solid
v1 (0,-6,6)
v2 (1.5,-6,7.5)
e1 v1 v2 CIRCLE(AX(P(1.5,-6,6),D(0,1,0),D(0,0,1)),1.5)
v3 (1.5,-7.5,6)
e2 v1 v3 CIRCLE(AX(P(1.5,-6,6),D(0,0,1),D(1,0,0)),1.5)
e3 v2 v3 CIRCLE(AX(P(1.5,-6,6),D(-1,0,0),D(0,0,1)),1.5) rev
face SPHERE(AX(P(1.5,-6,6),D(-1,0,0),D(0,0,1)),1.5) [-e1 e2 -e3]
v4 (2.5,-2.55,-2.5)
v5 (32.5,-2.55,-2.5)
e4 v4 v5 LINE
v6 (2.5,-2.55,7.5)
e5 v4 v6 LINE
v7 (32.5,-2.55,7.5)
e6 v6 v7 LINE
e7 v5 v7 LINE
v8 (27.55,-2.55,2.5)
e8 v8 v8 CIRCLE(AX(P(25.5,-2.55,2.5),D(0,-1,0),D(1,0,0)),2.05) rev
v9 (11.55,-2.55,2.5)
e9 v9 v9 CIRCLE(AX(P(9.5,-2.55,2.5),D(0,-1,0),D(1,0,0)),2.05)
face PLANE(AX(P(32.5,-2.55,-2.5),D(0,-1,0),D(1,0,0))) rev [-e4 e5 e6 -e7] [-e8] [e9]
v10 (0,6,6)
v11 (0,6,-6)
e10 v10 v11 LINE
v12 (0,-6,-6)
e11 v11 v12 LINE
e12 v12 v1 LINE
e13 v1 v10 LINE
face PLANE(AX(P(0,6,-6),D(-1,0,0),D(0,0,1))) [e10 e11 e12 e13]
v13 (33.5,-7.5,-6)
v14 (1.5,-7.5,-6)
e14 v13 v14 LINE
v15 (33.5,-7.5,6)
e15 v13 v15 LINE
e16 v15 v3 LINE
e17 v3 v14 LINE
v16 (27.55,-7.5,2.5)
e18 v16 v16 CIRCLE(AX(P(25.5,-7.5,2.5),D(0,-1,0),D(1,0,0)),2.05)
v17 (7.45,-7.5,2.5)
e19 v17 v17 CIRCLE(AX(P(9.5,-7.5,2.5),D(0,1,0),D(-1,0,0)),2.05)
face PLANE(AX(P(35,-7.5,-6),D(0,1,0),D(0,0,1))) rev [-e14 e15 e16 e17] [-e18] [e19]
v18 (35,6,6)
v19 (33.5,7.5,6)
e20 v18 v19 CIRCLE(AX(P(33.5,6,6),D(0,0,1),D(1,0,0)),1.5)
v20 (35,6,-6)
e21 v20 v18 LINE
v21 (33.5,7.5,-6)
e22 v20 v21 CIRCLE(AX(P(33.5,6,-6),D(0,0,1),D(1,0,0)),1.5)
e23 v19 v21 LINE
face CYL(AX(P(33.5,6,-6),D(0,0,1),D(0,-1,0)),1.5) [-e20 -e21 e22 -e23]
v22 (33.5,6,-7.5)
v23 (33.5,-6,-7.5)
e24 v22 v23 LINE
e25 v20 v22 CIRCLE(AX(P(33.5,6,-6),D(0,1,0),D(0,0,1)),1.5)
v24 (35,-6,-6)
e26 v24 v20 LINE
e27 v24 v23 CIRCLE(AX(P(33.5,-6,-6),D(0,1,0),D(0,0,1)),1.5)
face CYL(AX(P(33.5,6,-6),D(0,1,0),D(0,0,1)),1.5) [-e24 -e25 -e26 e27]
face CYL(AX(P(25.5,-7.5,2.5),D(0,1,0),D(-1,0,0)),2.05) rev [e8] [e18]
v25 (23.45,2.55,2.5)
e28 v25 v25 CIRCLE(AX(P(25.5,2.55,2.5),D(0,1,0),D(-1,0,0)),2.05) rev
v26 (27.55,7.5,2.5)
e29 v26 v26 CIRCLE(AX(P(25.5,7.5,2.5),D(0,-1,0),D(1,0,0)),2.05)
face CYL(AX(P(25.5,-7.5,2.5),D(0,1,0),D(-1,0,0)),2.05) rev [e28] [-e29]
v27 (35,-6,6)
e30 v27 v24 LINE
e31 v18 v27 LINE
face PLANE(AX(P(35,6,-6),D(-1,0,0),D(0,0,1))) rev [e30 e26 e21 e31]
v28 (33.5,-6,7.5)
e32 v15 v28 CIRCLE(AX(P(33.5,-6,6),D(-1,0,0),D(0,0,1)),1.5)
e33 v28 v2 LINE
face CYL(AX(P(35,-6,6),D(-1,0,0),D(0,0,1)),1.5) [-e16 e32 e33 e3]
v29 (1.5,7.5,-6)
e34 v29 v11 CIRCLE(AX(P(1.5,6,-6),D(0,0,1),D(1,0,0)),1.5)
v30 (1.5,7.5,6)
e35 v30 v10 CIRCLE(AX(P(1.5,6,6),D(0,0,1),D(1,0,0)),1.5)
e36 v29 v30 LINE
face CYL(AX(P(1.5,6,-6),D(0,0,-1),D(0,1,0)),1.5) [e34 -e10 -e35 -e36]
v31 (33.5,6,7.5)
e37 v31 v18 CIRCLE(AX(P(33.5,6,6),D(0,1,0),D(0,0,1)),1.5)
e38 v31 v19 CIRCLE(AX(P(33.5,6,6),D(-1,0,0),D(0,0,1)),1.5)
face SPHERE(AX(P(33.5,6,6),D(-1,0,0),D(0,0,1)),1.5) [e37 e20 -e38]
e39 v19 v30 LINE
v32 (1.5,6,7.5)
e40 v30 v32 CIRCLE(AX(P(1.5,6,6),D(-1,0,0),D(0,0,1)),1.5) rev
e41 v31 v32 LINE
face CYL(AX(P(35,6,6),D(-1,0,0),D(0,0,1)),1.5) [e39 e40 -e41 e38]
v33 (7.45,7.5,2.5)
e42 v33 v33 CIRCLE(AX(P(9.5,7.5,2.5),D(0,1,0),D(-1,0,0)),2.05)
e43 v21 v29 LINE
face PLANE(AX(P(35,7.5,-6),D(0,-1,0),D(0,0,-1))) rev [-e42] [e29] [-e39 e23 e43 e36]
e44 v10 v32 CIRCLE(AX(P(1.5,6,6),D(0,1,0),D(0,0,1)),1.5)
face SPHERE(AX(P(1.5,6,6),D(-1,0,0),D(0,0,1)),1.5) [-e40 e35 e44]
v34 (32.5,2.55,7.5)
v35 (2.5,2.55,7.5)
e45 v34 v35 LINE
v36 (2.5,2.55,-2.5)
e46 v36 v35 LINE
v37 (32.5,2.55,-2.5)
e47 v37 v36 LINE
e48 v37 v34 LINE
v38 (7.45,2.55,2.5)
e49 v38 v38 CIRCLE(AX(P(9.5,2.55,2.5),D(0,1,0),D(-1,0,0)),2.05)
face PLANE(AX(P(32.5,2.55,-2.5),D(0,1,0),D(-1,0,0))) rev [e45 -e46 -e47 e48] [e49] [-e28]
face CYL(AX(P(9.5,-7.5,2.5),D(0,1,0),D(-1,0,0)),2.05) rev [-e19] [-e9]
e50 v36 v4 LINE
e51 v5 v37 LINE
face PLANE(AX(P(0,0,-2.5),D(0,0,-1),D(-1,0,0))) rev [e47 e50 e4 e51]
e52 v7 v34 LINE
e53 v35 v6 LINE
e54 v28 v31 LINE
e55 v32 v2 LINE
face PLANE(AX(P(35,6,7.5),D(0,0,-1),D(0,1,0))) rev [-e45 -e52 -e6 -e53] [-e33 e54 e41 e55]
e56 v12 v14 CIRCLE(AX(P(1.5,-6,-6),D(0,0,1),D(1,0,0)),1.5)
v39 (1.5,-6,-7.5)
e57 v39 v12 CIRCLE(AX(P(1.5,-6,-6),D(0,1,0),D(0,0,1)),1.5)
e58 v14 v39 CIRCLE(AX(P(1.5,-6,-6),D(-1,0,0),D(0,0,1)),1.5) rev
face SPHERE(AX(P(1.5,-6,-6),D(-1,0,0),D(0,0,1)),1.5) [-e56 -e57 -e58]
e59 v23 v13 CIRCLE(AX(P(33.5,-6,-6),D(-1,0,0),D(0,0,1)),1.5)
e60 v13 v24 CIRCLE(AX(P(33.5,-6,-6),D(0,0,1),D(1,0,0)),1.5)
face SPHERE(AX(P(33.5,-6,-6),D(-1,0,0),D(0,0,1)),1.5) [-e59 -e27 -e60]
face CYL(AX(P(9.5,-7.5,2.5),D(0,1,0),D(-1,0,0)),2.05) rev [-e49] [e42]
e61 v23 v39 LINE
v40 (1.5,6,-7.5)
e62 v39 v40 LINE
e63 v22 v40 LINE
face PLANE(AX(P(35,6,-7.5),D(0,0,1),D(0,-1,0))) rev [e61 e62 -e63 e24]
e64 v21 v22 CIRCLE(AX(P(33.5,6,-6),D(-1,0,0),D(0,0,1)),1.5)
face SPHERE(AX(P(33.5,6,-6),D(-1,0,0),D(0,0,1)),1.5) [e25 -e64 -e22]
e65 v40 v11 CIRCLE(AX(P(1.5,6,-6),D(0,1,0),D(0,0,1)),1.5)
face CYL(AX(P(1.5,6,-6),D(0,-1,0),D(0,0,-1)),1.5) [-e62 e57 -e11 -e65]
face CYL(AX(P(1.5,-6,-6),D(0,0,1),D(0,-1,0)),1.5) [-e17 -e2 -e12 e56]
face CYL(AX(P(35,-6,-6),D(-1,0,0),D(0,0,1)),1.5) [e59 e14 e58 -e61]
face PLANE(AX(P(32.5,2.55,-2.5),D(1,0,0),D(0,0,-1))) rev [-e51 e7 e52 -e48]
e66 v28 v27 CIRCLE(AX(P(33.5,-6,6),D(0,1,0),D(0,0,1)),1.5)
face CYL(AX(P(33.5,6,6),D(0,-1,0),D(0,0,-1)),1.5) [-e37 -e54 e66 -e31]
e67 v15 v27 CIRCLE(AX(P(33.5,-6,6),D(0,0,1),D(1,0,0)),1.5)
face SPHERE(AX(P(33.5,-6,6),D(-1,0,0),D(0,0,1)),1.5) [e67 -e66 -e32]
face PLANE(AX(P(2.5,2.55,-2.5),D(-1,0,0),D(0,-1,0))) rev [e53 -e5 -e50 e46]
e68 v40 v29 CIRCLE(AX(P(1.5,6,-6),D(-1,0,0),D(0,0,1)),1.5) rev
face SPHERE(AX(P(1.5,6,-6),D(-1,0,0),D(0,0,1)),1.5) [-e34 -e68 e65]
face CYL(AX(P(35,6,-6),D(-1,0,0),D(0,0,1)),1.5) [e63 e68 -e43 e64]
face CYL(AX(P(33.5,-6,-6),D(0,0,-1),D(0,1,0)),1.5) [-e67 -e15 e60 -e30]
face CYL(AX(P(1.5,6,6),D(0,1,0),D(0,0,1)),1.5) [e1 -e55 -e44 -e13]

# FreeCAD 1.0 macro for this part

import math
import FreeCAD as App
import Part
import Sketcher

V = App.Vector


def edges_at(feature, points):
    """Names of the edges that pass closest to the given points."""
    edges = feature.Shape.Edges
    near = lambda p: min(range(len(edges)), key=lambda i: edges[i].distToShape(Part.Vertex(*p))[0])
    return sorted({f"Edge{near(p) + 1}" for p in points})

doc = App.newDocument("Part")
body = doc.addObject("PartDesign::Body", "Body")

# Sketch on YZ plane
sketch1 = body.newObject("Sketcher::SketchObject", "Sketch")
sketch1.AttachmentSupport = (doc.getObject("YZ_Plane"), [""])
sketch1.MapMode = "FlatFace"
sketch1.addGeometry([
    Part.LineSegment(V(7.5, -6, 0), V(7.5, 6, 0)),  # 0
    Part.ArcOfCircle(Part.Circle(V(6, 6, 0), V(0, 0, 1), 1.5), math.radians(0), math.radians(90)),  # 1
    Part.LineSegment(V(6, 7.5, 0), V(-6, 7.5, 0)),  # 2
    Part.ArcOfCircle(Part.Circle(V(-6, 6, 0), V(0, 0, 1), 1.5), math.radians(90), math.radians(180)),  # 3
    Part.LineSegment(V(-7.5, 6, 0), V(-7.5, -6, 0)),  # 4
    Part.ArcOfCircle(Part.Circle(V(-6, -6, 0), V(0, 0, 1), 1.5), math.radians(180), math.radians(270)),  # 5
    Part.LineSegment(V(-6, -7.5, 0), V(6, -7.5, 0)),  # 6
    Part.ArcOfCircle(Part.Circle(V(6, -6, 0), V(0, 0, 1), 1.5), math.radians(-90), math.radians(0)),  # 7
], False)
sketch1.addConstraint([
    Sketcher.Constraint("Tangent", 0, 2, 1, 1),
    Sketcher.Constraint("Tangent", 1, 2, 2, 1),
    Sketcher.Constraint("Tangent", 2, 2, 3, 1),
    Sketcher.Constraint("Tangent", 3, 2, 4, 1),
    Sketcher.Constraint("Tangent", 4, 2, 5, 1),
    Sketcher.Constraint("Tangent", 5, 2, 6, 1),
    Sketcher.Constraint("Tangent", 6, 2, 7, 1),
    Sketcher.Constraint("Tangent", 7, 2, 0, 1),
    Sketcher.Constraint("Vertical", 0),
    Sketcher.Constraint("Horizontal", 2),
    Sketcher.Constraint("Vertical", 4),
    Sketcher.Constraint("Horizontal", 6),
    Sketcher.Constraint("Equal", 1, 3),
    Sketcher.Constraint("Equal", 3, 5),
    Sketcher.Constraint("Equal", 5, 7),
    Sketcher.Constraint("Symmetric", 1, 3, 5, 3, -1, 1),
    Sketcher.Constraint("Equal", 6, 0),
    Sketcher.Constraint("Radius", 1, 1.5),
    Sketcher.Constraint("DistanceX", 2, 2, 2, 1, 12.0),
])
pad1 = body.newObject("PartDesign::Pad", "Pad")
pad1.Profile = sketch1
pad1.Length = 35

# Sketch on XY plane
sketch2 = body.newObject("Sketcher::SketchObject", "Sketch001")
sketch2.AttachmentSupport = (doc.getObject("XY_Plane"), [""])
sketch2.MapMode = "FlatFace"
sketch2.AttachmentOffset = App.Placement(V(0, 0, 7.5), App.Rotation())
sketch2.addGeometry([
    Part.LineSegment(V(2, 3, 0), V(2, -3, 0)),
    Part.LineSegment(V(2, -3, 0), V(32, -3, 0)),
    Part.LineSegment(V(32, -3, 0), V(32, 3, 0)),
    Part.LineSegment(V(32, 3, 0), V(2, 3, 0)),
], False)
sketch2.addConstraint([
    Sketcher.Constraint("Coincident", 0, 2, 1, 1),
    Sketcher.Constraint("Coincident", 1, 2, 2, 1),
    Sketcher.Constraint("Coincident", 2, 2, 3, 1),
    Sketcher.Constraint("Coincident", 3, 2, 0, 1),
    Sketcher.Constraint("Vertical", 0),
    Sketcher.Constraint("Horizontal", 1),
    Sketcher.Constraint("Vertical", 2),
    Sketcher.Constraint("Horizontal", 3),
    Sketcher.Constraint("DistanceX", 1, 1, 1, 2, 30.0),
    Sketcher.Constraint("DistanceY", 0, 2, 0, 1, 5.1),
    Sketcher.Constraint("DistanceX", -1, 1, 0, 2, 2.5),
    Sketcher.Constraint("DistanceY", 0, 2, -1, 1, 2.55),
])
pocket1 = body.newObject("PartDesign::Pocket", "Pocket")
pocket1.Profile = sketch2
pocket1.Length = 10

# Sketch on XZ plane
sketch3 = body.newObject("Sketcher::SketchObject", "Sketch002")
sketch3.AttachmentSupport = (doc.getObject("XZ_Plane"), [""])
sketch3.MapMode = "FlatFace"
sketch3.AttachmentOffset = App.Placement(V(0, 0, 2.55), App.Rotation())
sketch3.addGeometry([
    Part.Circle(V(9.5, 2.5, 0), V(0, 0, 1), 2),
    Part.Circle(V(25.5, 2.5, 0), V(0, 0, 1), 2),
], False)
sketch3.addConstraint([
    Sketcher.Constraint("Equal", 0, 1),
    Sketcher.Constraint("Horizontal", 0, 3, 1, 3),
    Sketcher.Constraint("Diameter", 0, 4.1),
    Sketcher.Constraint("DistanceX", 0, 3, 1, 3, 16.0),
    Sketcher.Constraint("DistanceX", -1, 1, 0, 3, 9.5),
    Sketcher.Constraint("DistanceY", -1, 1, 0, 3, 2.5),
])
pocket2 = body.newObject("PartDesign::Pocket", "Pocket001")
pocket2.Profile = sketch3
pocket2.Type = "ThroughAll"
pocket2.Midplane = True
doc.recompute()

fillet = body.newObject("PartDesign::Fillet", "Fillet")
fillet.Base = (pocket2, edges_at(pocket2, [
    (0, 0, 7.5),
    (0, 7.061, 7.061),
    (0, 7.5, 0),
    (0, 7.061, -7.061),
    (35, 7.061, 7.061),
    (35, 0, 7.5),
    (35, -7.061, 7.061),
    (35, -7.5, 0),
    (35, -7.061, -7.061),
    (35, 0, -7.5),
    (35, 7.061, -7.061),
    (0, 0, -7.5),
    (35, 7.5, 0),
    (0, -7.061, -7.061),
    (0, -7.5, 0),
    (0, -7.061, 7.061),
]))
fillet.Radius = 1.5

doc.recompute()
